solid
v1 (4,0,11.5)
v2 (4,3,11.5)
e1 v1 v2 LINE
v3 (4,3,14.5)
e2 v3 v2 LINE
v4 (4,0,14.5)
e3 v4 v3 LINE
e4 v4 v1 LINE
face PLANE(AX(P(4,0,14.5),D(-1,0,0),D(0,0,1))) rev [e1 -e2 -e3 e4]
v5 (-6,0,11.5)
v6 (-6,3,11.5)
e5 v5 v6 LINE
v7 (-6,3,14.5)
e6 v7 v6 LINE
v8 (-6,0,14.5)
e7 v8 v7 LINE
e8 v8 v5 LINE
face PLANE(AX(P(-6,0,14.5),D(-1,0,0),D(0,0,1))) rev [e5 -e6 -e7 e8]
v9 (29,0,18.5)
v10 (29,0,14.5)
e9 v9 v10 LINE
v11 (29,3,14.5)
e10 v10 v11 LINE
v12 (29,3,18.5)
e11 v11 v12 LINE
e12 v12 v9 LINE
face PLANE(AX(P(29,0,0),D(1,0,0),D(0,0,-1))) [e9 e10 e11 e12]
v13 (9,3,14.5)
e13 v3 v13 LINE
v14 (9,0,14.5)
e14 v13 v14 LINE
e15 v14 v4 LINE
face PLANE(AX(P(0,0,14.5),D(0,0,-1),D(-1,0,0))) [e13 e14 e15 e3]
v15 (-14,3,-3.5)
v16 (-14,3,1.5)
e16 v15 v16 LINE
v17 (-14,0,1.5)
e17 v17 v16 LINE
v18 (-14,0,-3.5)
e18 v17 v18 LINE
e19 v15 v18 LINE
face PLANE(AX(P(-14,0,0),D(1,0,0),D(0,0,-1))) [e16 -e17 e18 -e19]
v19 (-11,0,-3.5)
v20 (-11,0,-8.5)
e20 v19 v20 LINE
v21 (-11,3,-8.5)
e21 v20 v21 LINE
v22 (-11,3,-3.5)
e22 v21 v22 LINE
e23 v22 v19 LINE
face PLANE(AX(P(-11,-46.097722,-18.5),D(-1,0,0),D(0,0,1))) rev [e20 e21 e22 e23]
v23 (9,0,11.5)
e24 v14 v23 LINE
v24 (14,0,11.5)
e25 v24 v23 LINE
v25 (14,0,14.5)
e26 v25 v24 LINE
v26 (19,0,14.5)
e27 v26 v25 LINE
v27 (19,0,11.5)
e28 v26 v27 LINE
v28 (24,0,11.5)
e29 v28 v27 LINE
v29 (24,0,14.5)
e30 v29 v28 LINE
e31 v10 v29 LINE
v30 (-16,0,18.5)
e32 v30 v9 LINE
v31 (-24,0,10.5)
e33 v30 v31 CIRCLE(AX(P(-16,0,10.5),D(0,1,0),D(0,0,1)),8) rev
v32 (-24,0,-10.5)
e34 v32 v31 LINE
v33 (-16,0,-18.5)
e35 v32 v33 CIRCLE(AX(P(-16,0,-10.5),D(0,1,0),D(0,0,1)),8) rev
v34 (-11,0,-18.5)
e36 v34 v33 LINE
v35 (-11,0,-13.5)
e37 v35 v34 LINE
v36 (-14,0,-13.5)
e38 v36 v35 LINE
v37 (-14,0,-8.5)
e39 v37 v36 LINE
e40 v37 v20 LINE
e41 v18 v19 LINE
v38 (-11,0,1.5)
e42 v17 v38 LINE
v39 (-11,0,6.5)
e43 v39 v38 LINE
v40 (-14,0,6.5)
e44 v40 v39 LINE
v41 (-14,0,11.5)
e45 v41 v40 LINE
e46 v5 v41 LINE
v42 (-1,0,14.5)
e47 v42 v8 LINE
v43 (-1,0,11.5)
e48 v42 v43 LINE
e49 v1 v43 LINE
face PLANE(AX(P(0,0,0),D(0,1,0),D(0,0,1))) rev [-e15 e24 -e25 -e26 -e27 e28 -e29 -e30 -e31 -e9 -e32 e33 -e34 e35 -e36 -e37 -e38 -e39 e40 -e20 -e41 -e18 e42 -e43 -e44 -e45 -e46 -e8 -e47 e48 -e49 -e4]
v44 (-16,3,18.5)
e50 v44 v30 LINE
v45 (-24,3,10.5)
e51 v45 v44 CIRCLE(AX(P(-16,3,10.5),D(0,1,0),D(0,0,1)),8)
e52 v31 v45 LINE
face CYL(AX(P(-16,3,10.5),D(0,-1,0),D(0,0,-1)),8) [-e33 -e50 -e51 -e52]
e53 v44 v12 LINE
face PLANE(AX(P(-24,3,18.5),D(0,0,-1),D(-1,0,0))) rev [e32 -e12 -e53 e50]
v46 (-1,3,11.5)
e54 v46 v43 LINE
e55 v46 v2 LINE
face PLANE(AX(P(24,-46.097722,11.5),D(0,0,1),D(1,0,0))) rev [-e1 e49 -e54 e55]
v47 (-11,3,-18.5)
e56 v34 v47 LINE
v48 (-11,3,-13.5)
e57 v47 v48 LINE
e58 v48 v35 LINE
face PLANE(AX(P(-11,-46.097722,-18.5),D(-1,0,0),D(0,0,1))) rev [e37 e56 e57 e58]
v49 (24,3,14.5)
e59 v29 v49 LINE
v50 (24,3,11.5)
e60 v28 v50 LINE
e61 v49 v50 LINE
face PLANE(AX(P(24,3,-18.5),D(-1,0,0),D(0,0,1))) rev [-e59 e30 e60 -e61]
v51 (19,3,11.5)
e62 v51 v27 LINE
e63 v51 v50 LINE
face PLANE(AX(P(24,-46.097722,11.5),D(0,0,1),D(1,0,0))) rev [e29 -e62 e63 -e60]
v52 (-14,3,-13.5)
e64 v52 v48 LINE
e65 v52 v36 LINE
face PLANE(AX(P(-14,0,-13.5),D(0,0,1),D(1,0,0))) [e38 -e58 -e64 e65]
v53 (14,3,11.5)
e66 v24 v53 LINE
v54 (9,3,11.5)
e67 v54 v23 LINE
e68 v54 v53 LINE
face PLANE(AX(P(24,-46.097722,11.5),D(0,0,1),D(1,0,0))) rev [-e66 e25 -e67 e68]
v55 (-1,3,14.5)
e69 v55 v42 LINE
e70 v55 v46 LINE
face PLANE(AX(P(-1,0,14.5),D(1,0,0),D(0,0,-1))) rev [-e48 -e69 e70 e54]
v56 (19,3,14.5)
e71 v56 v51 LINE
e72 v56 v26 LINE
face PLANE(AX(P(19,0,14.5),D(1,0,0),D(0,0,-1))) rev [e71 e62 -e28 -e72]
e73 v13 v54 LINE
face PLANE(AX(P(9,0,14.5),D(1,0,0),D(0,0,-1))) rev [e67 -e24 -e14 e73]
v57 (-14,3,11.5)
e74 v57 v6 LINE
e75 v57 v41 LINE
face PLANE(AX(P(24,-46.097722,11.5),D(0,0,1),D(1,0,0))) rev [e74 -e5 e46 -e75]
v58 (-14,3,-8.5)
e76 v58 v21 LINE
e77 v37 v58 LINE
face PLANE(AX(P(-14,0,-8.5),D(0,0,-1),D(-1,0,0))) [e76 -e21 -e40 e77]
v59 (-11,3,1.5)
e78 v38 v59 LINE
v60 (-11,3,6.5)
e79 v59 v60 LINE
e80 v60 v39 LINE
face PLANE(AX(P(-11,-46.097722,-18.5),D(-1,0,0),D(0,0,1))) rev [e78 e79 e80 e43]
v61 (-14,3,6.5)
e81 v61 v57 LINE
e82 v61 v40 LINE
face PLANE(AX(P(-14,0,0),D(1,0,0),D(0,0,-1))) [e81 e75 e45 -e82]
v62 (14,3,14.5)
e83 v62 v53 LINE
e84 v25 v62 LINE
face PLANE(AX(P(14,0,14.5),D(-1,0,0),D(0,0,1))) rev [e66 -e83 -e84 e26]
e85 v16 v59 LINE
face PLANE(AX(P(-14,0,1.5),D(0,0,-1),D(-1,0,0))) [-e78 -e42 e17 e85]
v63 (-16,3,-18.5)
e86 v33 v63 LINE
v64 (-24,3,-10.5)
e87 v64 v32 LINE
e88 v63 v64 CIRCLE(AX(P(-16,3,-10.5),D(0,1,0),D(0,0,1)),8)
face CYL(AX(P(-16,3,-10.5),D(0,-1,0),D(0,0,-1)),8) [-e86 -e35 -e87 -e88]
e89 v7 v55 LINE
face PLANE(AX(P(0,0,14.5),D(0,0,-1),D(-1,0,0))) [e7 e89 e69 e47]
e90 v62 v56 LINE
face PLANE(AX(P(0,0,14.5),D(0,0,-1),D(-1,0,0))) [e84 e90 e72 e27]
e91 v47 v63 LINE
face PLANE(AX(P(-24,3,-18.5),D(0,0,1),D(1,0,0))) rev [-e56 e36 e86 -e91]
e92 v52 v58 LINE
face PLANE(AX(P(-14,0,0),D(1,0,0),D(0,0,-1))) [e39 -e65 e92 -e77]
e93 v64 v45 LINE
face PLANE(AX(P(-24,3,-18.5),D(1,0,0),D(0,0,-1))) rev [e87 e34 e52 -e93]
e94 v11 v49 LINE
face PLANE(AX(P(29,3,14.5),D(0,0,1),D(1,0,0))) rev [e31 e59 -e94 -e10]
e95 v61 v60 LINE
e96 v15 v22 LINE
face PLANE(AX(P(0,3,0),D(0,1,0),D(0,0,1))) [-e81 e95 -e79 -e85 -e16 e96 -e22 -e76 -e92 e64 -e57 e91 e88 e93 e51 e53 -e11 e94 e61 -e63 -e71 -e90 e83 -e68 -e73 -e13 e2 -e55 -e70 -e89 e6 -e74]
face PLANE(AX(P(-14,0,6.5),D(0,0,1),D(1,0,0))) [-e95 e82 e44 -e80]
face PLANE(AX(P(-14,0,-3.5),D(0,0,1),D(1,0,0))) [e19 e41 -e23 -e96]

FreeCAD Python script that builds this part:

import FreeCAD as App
import Part
import Sketcher
from FreeCAD import Vector


def edges_at(feature, points):
    """Names of the edges that pass closest to the given points."""
    edges = feature.Shape.Edges
    near = lambda p: min(range(len(edges)), key=lambda i: edges[i].distToShape(Part.Vertex(*p))[0])
    return sorted({f"Edge{near(p) + 1}" for p in points})


def add_polygon(sketch, points):
    """Adds a closed chain of lines whose ends are joined by coincident constraints."""
    first, n = sketch.GeometryCount, len(points)
    for a, b in zip(points, points[1:] + points[:1]):
        sketch.addGeometry(Part.LineSegment(App.Vector(*a, 0), App.Vector(*b, 0)), False)
    for i in range(n):
        sketch.addConstraint(Sketcher.Constraint("Coincident", first + i, 2, first + (i + 1) % n, 1))

doc = App.newDocument("Part")
body = doc.addObject("PartDesign::Body", "Body")

# Sketch on XZ plane
sketch1 = body.newObject("Sketcher::SketchObject", "Sketch")
sketch1.AttachmentSupport = (doc.getObject("XZ_Plane"), [""])
sketch1.MapMode = "FlatFace"
add_polygon(sketch1, [(-24, -18.5), (-24, 18.5), (24, 18.5), (24, -18.5)])  # lines 0-3
sketch1.addConstraint([
    Sketcher.Constraint("Vertical", 0),
    Sketcher.Constraint("Horizontal", 1),
    Sketcher.Constraint("Vertical", 2),
    Sketcher.Constraint("Horizontal", 3),
    Sketcher.Constraint("Symmetric", 0, 2, 2, 2, -1, 1),
    Sketcher.Constraint("DistanceX", 1, 1, 1, 2, 48.0),
    Sketcher.Constraint("DistanceY", 0, 1, 0, 2, 37.0),
])
pad1 = body.newObject("PartDesign::Pad", "Pad")
pad1.Profile = sketch1
pad1.Length = 3
pad1.Reversed = True

# Sketch on XZ plane
sketch2 = body.newObject("Sketcher::SketchObject", "Sketch001")
sketch2.AttachmentSupport = (doc.getObject("XZ_Plane"), [""])
sketch2.MapMode = "FlatFace"
sketch2.AttachmentOffset = App.Placement(Vector(0, 0, -3), App.Rotation())
add_polygon(sketch2, [(-11, -18.5), (-11, 11.5), (24, 11.5), (24, -18.5)])  # lines 0-3
sketch2.addConstraint([
    Sketcher.Constraint("Vertical", 0),
    Sketcher.Constraint("Horizontal", 1),
    Sketcher.Constraint("Vertical", 2),
    Sketcher.Constraint("Horizontal", 3),
    Sketcher.Constraint("DistanceX", 1, 1, 1, 2, 35.0),
    Sketcher.Constraint("DistanceY", 0, 1, 0, 2, 30.0),
    Sketcher.Constraint("DistanceX", 0, 2, -1, 1, 11.0),
    Sketcher.Constraint("DistanceY", -1, 1, 0, 2, 11.5),
])
pocket1 = body.newObject("PartDesign::Pocket", "Pocket")
pocket1.Profile = sketch2
pocket1.Length = 3
pocket1.Reversed = True

# Sketch on YZ plane
sketch3 = body.newObject("Sketcher::SketchObject", "Sketch002")
sketch3.AttachmentSupport = (doc.getObject("YZ_Plane"), [""])
sketch3.MapMode = "FlatFace"
sketch3.AttachmentOffset = App.Placement(Vector(0, 0, -11), App.Rotation())
add_polygon(sketch3, [(3, -8.5), (0, -8.5), (0, -13.5), (3, -13.5)])  # lines 0-3
add_polygon(sketch3, [(3, 1.5), (0, 1.5), (0, -3.5), (3, -3.5)])  # lines 4-7
add_polygon(sketch3, [(3, 11.5), (0, 11.5), (0, 6.5), (3, 6.5)])  # lines 8-11
sketch3.addConstraint([
    Sketcher.Constraint("Horizontal", 0),
    Sketcher.Constraint("Vertical", 1),
    Sketcher.Constraint("Horizontal", 2),
    Sketcher.Constraint("Vertical", 3),
    Sketcher.Constraint("Horizontal", 4),
    Sketcher.Constraint("Vertical", 5),
    Sketcher.Constraint("Horizontal", 6),
    Sketcher.Constraint("Vertical", 7),
    Sketcher.Constraint("Horizontal", 8),
    Sketcher.Constraint("Vertical", 9),
    Sketcher.Constraint("Horizontal", 10),
    Sketcher.Constraint("Vertical", 11),
    Sketcher.Constraint("PointOnObject", 0, 2, -2),
    Sketcher.Constraint("PointOnObject", 4, 2, -2),
    Sketcher.Constraint("PointOnObject", 8, 2, -2),
    Sketcher.Constraint("Vertical", 3, 2, 6, 2),
    Sketcher.Constraint("Vertical", 7, 2, 10, 2),
    Sketcher.Constraint("Equal", 3, 5),
    Sketcher.Constraint("Equal", 7, 9),
    Sketcher.Constraint("DistanceX", 0, 2, 0, 1, 3.0),
    Sketcher.Constraint("DistanceY", 1, 2, 1, 1, 5.0),
    Sketcher.Constraint("DistanceY", 0, 2, 4, 2, 10.0),
    Sketcher.Constraint("DistanceY", 4, 2, 8, 2, 10.0),
    Sketcher.Constraint("DistanceY", 0, 2, -1, 1, 8.5),
])
pocket2 = body.newObject("PartDesign::Pocket", "Pocket001")
pocket2.Profile = sketch3
pocket2.Length = 3

# Sketch on XY plane
sketch4 = body.newObject("Sketcher::SketchObject", "Sketch003")
sketch4.AttachmentSupport = (doc.getObject("XY_Plane"), [""])
sketch4.MapMode = "FlatFace"
sketch4.AttachmentOffset = App.Placement(Vector(0, 0, 11.5), App.Rotation())
add_polygon(sketch4, [(19, 3), (19, 0), (14, 0), (14, 3)])  # lines 0-3
add_polygon(sketch4, [(9, 3), (9, 0), (4, 0), (4, 3)])  # lines 4-7
add_polygon(sketch4, [(-1, 3), (-1, 0), (-6, 0), (-6, 3)])  # lines 8-11
sketch4.addConstraint([
    Sketcher.Constraint("Vertical", 0),
    Sketcher.Constraint("Horizontal", 1),
    Sketcher.Constraint("Vertical", 2),
    Sketcher.Constraint("Horizontal", 3),
    Sketcher.Constraint("Vertical", 4),
    Sketcher.Constraint("Horizontal", 5),
    Sketcher.Constraint("Vertical", 6),
    Sketcher.Constraint("Horizontal", 7),
    Sketcher.Constraint("Vertical", 8),
    Sketcher.Constraint("Horizontal", 9),
    Sketcher.Constraint("Vertical", 10),
    Sketcher.Constraint("Horizontal", 11),
    Sketcher.Constraint("PointOnObject", 0, 2, -1),
    Sketcher.Constraint("PointOnObject", 4, 2, -1),
    Sketcher.Constraint("PointOnObject", 8, 2, -1),
    Sketcher.Constraint("Horizontal", 3, 2, 6, 2),
    Sketcher.Constraint("Horizontal", 7, 2, 10, 2),
    Sketcher.Constraint("Equal", 3, 5),
    Sketcher.Constraint("Equal", 7, 9),
    Sketcher.Constraint("DistanceX", 1, 2, 1, 1, 5.0),
    Sketcher.Constraint("DistanceY", 0, 2, 0, 1, 3.0),
    Sketcher.Constraint("DistanceX", -1, 1, 0, 2, 19.0),
    Sketcher.Constraint("DistanceX", -1, 1, 4, 2, 9.0),
    Sketcher.Constraint("DistanceX", 8, 2, -1, 1, 1.0),
])
pocket3 = body.newObject("PartDesign::Pocket", "Pocket002")
pocket3.Profile = sketch4
pocket3.Length = 3
pocket3.Reversed = True

# Sketch on YZ plane
sketch5 = body.newObject("Sketcher::SketchObject", "Sketch004")
sketch5.AttachmentSupport = (doc.getObject("YZ_Plane"), [""])
sketch5.MapMode = "FlatFace"
sketch5.AttachmentOffset = App.Placement(Vector(0, 0, 24), App.Rotation())
add_polygon(sketch5, [(3, 18.5), (0, 18.5), (0, 14.5), (3, 14.5)])  # lines 0-3
sketch5.addConstraint([
    Sketcher.Constraint("Horizontal", 0),
    Sketcher.Constraint("Vertical", 1),
    Sketcher.Constraint("Horizontal", 2),
    Sketcher.Constraint("Vertical", 3),
    Sketcher.Constraint("PointOnObject", 0, 2, -2),
    Sketcher.Constraint("DistanceX", 0, 2, 0, 1, 3.0),
    Sketcher.Constraint("DistanceY", 1, 2, 1, 1, 4.0),
    Sketcher.Constraint("DistanceY", -1, 1, 0, 2, 18.5),
])
pad2 = body.newObject("PartDesign::Pad", "Pad001")
pad2.Profile = sketch5
pad2.Length = 5
doc.recompute()

fillet = body.newObject("PartDesign::Fillet", "Fillet")
fillet.Base = (pad2, edges_at(pad2, [(-24, 1.5, 18.5), (-24, 1.5, -18.5)]))
fillet.Radius = 8

doc.recompute()
